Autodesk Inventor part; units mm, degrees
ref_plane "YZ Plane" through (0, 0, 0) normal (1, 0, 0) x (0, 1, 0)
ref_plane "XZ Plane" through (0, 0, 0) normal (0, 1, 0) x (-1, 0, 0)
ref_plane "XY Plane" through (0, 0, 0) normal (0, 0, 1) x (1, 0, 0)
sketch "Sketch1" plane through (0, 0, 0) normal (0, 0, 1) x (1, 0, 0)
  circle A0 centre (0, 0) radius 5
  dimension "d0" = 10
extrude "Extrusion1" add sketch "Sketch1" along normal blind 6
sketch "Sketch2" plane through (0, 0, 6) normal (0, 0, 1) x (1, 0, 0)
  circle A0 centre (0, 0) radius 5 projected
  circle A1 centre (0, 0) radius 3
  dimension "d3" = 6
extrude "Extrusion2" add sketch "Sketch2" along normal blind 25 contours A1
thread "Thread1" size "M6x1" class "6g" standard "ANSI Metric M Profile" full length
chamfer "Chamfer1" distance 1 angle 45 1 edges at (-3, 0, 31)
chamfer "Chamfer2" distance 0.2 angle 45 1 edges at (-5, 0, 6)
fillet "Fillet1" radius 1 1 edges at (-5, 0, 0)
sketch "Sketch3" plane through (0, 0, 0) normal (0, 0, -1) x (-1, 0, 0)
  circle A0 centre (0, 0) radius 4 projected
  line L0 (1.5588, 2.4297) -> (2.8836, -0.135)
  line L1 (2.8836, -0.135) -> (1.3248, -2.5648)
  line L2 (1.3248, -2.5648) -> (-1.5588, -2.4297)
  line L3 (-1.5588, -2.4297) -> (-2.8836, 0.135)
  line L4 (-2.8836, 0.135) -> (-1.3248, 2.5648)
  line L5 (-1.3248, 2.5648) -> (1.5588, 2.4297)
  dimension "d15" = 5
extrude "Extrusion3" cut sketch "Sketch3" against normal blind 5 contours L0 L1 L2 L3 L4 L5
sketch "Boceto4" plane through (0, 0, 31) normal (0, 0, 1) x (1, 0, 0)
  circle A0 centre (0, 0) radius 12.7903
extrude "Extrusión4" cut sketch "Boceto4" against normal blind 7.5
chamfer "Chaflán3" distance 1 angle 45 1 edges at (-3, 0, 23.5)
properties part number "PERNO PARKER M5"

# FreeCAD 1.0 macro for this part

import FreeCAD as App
import Part
import Sketcher
Q = App.Units.Quantity


def edges_at(feature, points):
    """Names of the edges that pass closest to the given points."""
    edges = feature.Shape.Edges
    near = lambda p: min(range(len(edges)), key=lambda i: edges[i].distToShape(Part.Vertex(*p))[0])
    return sorted({f"Edge{near(p) + 1}" for p in points})

doc = App.newDocument("Part")
body = doc.addObject("PartDesign::Body", "Body")

# Sketch on XY plane
sketch1 = body.newObject("Sketcher::SketchObject", "Sketch")
sketch1.AttachmentSupport = (doc.getObject("XY_Plane"), [""])
sketch1.MapMode = "FlatFace"
sketch1.addGeometry(Part.Circle(App.Vector(0, 0, 0), App.Vector(0, 0, 1), 5), False)
sketch1.addConstraint([
    Sketcher.Constraint("Coincident", 0, 3, -1, 1),
    Sketcher.Constraint("Diameter", 0, Q("10 mm")),
])
pad1 = body.newObject("PartDesign::Pad", "Pad")
pad1.Profile = sketch1
pad1.Length = 6

# Sketch on XY plane
sketch2 = body.newObject("Sketcher::SketchObject", "Sketch001")
sketch2.AttachmentSupport = (doc.getObject("XY_Plane"), [""])
sketch2.MapMode = "FlatFace"
sketch2.AttachmentOffset = App.Placement(App.Vector(0, 0, 6), App.Rotation())
sketch2.addGeometry(Part.Circle(App.Vector(0, 0, 0), App.Vector(0, 0, 1), 3), False)
sketch2.addConstraint([
    Sketcher.Constraint("Coincident", 0, 3, -1, 1),
    Sketcher.Constraint("Diameter", 0, Q("6 mm")),
])
pad2 = body.newObject("PartDesign::Pad", "Pad001")
pad2.Profile = sketch2
pad2.Length = 25
doc.recompute()

chamfer = body.newObject("PartDesign::Chamfer", "Chamfer")
chamfer.Base = (pad2, edges_at(pad2, [(-3, 0, 31)]))
chamfer.Size = 1
doc.recompute()

chamfer2 = body.newObject("PartDesign::Chamfer", "Chamfer001")
chamfer2.Base = (chamfer, edges_at(chamfer, [(-5, 0, 6)]))
chamfer2.Size = 0.2
doc.recompute()

fillet = body.newObject("PartDesign::Fillet", "Fillet")
fillet.Base = (chamfer2, edges_at(chamfer2, [(-5, 0, 0)]))
fillet.Radius = 1

# Sketch on XY plane
sketch3 = body.newObject("Sketcher::SketchObject", "Sketch002")
sketch3.AttachmentSupport = (doc.getObject("XY_Plane"), [""])
sketch3.MapMode = "FlatFace"
sketch3.addGeometry([
    Part.LineSegment(App.Vector(-2.9, -0.1, 0), App.Vector(-1.6, 2.4, 0)),  # 0
    Part.LineSegment(App.Vector(-1.6, 2.4, 0), App.Vector(1.3, 2.6, 0)),  # 1
    Part.LineSegment(App.Vector(1.3, 2.6, 0), App.Vector(2.9, 0.1, 0)),  # 2
    Part.LineSegment(App.Vector(2.9, 0.1, 0), App.Vector(1.6, -2.4, 0)),  # 3
    Part.LineSegment(App.Vector(1.6, -2.4, 0), App.Vector(-1.3, -2.6, 0)),  # 4
    Part.LineSegment(App.Vector(-1.3, -2.6, 0), App.Vector(-2.9, -0.1, 0)),  # 5
], False)
sketch3.addConstraint([
    Sketcher.Constraint("Coincident", 0, 2, 1, 1),
    Sketcher.Constraint("Coincident", 1, 2, 2, 1),
    Sketcher.Constraint("Coincident", 2, 2, 3, 1),
    Sketcher.Constraint("Coincident", 3, 2, 4, 1),
    Sketcher.Constraint("Coincident", 4, 2, 5, 1),
    Sketcher.Constraint("Coincident", 5, 2, 0, 1),
    Sketcher.Constraint("Symmetric", 0, 2, 3, 2, -1, 1),
    Sketcher.Constraint("Symmetric", 1, 2, 4, 2, -1, 1),
    Sketcher.Constraint("Symmetric", 2, 2, 5, 2, -1, 1),
    Sketcher.Constraint("Equal", 0, 1),
    Sketcher.Constraint("Equal", 1, 2),
    Sketcher.Constraint("DistanceY", 5, 2, 2, 2, Q("0.27 mm")),
    Sketcher.Constraint("DistanceY", 0, 2, 1, 2, Q("0.135 mm")),
    Sketcher.Constraint("DistanceX", 1, 2, 3, 2, Q("0.234 mm")),
    Sketcher.Constraint("Distance", 0, Q("2.8867 mm")),
])
pocket1 = body.newObject("PartDesign::Pocket", "Pocket")
pocket1.Profile = sketch3
pocket1.Length = 5
pocket1.Reversed = True

# Sketch on XY plane
sketch4 = body.newObject("Sketcher::SketchObject", "Sketch003")
sketch4.AttachmentSupport = (doc.getObject("XY_Plane"), [""])
sketch4.MapMode = "FlatFace"
sketch4.AttachmentOffset = App.Placement(App.Vector(0, 0, 31), App.Rotation())
sketch4.addGeometry(Part.Circle(App.Vector(0, 0, 0), App.Vector(0, 0, 1), 13), False)
sketch4.addConstraint([
    Sketcher.Constraint("Coincident", 0, 3, -1, 1),
    Sketcher.Constraint("Diameter", 0, Q("25.5806 mm")),
])
pocket2 = body.newObject("PartDesign::Pocket", "Pocket001")
pocket2.Profile = sketch4
pocket2.Length = 7.5
doc.recompute()

chamfer3 = body.newObject("PartDesign::Chamfer", "Chamfer002")
chamfer3.Base = (pocket2, edges_at(pocket2, [(-3, 0, 23.5)]))
chamfer3.Size = 1

doc.recompute()
